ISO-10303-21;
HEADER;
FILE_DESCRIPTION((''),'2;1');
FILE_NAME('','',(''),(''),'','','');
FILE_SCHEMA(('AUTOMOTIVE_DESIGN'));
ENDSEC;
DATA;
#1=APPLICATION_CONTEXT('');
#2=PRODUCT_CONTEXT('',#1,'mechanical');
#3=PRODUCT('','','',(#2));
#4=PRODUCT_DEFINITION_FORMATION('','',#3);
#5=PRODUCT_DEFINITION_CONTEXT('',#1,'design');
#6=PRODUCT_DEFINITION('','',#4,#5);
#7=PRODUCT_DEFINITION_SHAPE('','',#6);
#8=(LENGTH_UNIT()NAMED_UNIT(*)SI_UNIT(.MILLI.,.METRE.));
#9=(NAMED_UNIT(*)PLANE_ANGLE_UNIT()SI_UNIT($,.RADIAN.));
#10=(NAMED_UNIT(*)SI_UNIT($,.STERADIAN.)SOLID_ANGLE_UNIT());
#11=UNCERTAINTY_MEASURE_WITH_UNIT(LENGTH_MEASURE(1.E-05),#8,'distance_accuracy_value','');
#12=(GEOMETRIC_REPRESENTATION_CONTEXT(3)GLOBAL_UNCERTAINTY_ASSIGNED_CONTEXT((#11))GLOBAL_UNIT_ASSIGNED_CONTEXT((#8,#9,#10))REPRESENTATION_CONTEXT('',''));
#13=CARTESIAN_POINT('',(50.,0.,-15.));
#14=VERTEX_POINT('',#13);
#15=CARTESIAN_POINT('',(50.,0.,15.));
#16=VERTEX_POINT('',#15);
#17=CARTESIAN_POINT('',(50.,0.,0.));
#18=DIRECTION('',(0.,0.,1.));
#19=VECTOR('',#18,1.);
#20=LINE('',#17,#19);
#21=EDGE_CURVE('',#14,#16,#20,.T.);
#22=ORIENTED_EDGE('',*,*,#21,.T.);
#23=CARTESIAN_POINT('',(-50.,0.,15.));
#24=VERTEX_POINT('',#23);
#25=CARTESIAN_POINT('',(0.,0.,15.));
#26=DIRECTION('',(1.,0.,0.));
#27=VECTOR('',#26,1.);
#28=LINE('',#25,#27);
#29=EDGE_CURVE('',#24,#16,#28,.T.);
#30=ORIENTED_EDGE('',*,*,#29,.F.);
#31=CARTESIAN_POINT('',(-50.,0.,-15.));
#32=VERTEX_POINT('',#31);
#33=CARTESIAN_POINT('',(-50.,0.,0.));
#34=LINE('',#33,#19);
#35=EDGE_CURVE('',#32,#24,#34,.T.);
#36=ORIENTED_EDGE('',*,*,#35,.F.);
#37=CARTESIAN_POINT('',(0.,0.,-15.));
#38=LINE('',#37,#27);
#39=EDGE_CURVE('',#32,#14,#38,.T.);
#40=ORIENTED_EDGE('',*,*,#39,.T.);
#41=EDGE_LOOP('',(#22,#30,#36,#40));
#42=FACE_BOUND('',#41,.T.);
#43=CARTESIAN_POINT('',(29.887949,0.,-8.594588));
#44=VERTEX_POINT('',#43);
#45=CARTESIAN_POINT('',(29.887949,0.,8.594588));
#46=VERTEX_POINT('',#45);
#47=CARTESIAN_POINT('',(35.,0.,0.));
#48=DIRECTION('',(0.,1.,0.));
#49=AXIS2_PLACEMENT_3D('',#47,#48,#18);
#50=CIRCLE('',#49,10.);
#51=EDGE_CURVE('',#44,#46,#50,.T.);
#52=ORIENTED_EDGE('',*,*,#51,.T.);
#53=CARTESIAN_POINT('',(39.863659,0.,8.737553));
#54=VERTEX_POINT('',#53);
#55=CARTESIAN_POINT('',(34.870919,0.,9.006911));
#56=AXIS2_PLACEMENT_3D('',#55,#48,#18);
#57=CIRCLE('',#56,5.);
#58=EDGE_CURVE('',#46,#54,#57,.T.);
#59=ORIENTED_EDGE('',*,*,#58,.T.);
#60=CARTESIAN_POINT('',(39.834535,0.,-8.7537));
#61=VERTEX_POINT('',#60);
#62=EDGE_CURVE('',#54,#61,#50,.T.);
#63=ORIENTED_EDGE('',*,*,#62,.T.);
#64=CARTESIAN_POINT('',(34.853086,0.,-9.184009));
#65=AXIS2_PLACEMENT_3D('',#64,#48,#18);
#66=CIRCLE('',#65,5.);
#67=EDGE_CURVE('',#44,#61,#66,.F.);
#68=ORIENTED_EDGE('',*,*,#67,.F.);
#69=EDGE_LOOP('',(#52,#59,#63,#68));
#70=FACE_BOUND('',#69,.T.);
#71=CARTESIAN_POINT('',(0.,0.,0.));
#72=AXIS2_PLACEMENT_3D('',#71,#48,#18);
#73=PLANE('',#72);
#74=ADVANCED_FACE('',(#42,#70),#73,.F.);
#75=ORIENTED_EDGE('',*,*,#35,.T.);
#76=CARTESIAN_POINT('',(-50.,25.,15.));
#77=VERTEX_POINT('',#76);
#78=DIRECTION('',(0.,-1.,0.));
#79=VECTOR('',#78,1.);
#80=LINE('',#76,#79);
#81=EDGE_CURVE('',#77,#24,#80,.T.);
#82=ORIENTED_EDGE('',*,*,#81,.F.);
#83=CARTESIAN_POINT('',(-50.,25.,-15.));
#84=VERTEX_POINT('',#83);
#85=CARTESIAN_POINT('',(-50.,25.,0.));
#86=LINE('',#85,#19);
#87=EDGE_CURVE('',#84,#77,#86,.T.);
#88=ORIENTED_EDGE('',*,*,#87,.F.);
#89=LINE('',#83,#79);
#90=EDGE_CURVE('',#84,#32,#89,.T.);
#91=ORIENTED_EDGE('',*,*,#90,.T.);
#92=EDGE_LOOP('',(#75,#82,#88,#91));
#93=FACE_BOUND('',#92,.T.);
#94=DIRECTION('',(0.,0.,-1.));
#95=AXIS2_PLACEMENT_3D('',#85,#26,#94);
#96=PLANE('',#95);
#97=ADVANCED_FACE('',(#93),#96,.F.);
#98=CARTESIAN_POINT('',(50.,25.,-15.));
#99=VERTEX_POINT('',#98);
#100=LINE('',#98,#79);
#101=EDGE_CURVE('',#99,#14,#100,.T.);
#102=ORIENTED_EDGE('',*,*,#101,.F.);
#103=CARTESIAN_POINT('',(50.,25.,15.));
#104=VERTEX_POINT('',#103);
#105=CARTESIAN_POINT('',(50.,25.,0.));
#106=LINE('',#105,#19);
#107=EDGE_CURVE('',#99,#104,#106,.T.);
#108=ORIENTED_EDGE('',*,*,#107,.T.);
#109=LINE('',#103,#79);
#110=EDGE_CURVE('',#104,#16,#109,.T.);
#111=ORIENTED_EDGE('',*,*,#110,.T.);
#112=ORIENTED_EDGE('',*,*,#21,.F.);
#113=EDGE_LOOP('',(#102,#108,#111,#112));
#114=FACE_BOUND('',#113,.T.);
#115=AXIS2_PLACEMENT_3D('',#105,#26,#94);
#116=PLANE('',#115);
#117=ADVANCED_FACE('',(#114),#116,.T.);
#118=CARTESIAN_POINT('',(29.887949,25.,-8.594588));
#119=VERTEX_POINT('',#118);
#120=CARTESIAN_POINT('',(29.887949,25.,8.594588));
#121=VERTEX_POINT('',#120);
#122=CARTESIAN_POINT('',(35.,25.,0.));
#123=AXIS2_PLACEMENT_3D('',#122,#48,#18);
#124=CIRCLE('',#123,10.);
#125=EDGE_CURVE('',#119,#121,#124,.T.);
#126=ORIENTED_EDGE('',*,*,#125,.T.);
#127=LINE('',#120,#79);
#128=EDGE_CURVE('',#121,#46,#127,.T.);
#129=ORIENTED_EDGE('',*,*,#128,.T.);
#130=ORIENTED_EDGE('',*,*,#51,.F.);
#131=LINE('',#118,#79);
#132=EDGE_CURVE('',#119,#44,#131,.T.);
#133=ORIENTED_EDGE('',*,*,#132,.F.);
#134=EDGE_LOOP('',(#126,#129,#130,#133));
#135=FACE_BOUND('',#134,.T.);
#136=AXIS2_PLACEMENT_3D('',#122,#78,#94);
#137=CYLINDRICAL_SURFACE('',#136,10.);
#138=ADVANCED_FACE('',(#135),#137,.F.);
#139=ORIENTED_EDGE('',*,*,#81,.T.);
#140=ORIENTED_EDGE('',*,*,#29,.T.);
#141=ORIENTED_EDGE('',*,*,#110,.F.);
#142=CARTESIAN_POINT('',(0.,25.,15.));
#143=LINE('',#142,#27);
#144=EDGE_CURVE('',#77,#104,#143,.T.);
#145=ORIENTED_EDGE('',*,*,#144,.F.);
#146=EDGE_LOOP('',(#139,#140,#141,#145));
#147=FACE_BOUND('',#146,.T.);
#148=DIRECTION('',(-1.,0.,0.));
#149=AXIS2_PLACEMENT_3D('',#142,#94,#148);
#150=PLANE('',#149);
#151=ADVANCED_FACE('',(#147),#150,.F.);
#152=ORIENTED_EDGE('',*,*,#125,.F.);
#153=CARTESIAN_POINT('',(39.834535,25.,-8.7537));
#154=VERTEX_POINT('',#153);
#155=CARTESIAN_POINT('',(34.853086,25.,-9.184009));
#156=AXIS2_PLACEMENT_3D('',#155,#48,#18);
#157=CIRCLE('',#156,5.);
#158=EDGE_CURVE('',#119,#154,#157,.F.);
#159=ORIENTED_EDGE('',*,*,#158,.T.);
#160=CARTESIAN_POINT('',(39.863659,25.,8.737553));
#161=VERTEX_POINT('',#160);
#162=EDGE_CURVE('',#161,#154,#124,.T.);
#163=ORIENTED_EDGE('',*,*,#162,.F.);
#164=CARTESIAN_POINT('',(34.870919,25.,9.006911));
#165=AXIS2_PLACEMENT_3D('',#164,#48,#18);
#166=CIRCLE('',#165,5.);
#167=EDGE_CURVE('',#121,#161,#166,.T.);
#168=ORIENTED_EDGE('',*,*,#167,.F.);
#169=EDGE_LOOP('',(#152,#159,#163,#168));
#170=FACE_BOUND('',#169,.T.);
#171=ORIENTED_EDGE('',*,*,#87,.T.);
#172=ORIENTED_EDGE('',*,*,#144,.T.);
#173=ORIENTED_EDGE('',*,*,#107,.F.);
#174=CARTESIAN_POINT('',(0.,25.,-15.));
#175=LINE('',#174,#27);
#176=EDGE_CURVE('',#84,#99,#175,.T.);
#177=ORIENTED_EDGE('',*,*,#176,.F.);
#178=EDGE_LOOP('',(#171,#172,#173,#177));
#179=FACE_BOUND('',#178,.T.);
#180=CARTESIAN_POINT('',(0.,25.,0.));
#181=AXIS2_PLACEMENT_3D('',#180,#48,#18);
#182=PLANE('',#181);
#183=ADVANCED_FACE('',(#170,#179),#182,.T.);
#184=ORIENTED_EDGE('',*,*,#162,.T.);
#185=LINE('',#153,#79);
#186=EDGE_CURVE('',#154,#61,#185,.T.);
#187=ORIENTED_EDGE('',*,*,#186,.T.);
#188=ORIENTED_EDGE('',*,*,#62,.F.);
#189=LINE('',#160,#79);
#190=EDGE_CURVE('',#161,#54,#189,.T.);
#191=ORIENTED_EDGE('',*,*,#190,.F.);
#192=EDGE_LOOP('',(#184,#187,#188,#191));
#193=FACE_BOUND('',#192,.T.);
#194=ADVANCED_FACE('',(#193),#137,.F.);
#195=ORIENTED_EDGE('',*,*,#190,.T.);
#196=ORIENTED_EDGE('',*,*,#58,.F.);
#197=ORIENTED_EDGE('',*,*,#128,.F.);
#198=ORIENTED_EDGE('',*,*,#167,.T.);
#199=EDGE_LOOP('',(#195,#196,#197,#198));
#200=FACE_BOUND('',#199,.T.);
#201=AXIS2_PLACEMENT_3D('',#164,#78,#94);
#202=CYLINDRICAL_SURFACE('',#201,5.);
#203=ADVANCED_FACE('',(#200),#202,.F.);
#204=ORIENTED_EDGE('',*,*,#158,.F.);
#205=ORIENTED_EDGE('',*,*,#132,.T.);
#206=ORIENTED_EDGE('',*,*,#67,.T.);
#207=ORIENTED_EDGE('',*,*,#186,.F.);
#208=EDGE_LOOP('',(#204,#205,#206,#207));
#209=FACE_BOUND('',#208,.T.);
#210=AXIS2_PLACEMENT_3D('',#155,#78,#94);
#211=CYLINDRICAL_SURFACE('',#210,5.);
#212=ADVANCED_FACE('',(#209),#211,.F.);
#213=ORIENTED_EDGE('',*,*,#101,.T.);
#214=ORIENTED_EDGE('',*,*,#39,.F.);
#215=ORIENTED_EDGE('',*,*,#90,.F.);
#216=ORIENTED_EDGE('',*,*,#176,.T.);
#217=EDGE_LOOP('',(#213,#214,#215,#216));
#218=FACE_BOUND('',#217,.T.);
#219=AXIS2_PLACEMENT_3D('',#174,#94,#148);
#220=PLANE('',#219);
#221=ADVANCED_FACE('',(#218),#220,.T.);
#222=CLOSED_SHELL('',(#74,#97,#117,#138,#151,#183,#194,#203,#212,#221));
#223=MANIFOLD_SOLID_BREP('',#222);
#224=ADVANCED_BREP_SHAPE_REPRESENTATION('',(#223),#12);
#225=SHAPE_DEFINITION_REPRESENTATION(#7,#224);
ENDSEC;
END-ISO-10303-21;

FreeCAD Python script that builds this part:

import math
import FreeCAD as App
import Part
import Sketcher
from FreeCAD import Vector
Q = App.Units.Quantity


def add_polygon(sketch, points):
    """Adds a closed chain of lines whose ends are joined by coincident constraints."""
    first, n = sketch.GeometryCount, len(points)
    for a, b in zip(points, points[1:] + points[:1]):
        sketch.addGeometry(Part.LineSegment(App.Vector(*a, 0), App.Vector(*b, 0)), False)
    for i in range(n):
        sketch.addConstraint(Sketcher.Constraint("Coincident", first + i, 2, first + (i + 1) % n, 1))

doc = App.newDocument("Part")
params = doc.addObject("Spreadsheet::Sheet", "Params")
for row, (alias, value) in enumerate([
    ("sketch1_radius", "5 mm"),
    ("sketch1_radius2", "10 mm"),
    ("sketch1_width", "100 mm"),
    ("sketch1_height", "30 mm"),
    ("pad1_length", "25 mm"),
], start=1):
    params.set(f"A{row}", alias)
    params.set(f"B{row}", "=" + value)
    params.setAlias(f"B{row}", alias)

body = doc.addObject("PartDesign::Body", "Body")

sketch1 = body.newObject("Sketcher::SketchObject", "Sketch")
sketch1.AttachmentSupport = (doc.getObject("XZ_Plane"), [""])
sketch1.MapMode = "FlatFace"
add_polygon(sketch1, [(-50, -15), (-50, 15), (50, 15), (50, -15)])
sketch1.addGeometry(Part.ArcOfCircle(Part.Circle(Vector(35, -9, 0), Vector(0, 0, 1), 5), math.radians(173), math.radians(365)), False)
sketch1.addGeometry(Part.ArcOfCircle(Part.Circle(Vector(35, 0, 0), Vector(0, 0, 1), 10), math.radians(-61), math.radians(0)), False)
sketch1.addGeometry(Part.ArcOfCircle(Part.Circle(Vector(35, 0, 0), Vector(0, 0, 1), 10), math.radians(0), math.radians(61)), False)
sketch1.addGeometry(Part.ArcOfCircle(Part.Circle(Vector(35, 9, 0), Vector(0, 0, 1), 5), math.radians(-3), math.radians(185)), False)
sketch1.addGeometry(Part.ArcOfCircle(Part.Circle(Vector(35, 0, 0), Vector(0, 0, 1), 10), math.radians(121), math.radians(239)), False)
sketch1.addConstraint([
    Sketcher.Constraint("Coincident", 4, 2, 5, 1),
    Sketcher.Constraint("Tangent", 5, 2, 6, 1),
    Sketcher.Constraint("Coincident", 6, 2, 7, 1),
    Sketcher.Constraint("Coincident", 7, 2, 8, 1),
    Sketcher.Constraint("Coincident", 8, 2, 4, 1),
    Sketcher.Constraint("Vertical", 0),
    Sketcher.Constraint("Horizontal", 1),
    Sketcher.Constraint("Vertical", 2),
    Sketcher.Constraint("Horizontal", 3),
    Sketcher.Constraint("Coincident", 8, 3, 5, 3),
    Sketcher.Constraint("Equal", 5, 6),
    Sketcher.Constraint("Equal", 4, 7),
    Sketcher.Constraint("Equal", 6, 8),
    Sketcher.Constraint("Symmetric", 0, 2, 2, 2, -1, 1),
    Sketcher.Constraint("Symmetric", 7, 2, 8, 2, -1),
    Sketcher.Constraint("PointOnObject", 5, 2, -1),
    Sketcher.Constraint("Radius", 4, Q("5 mm")),
    Sketcher.Constraint("Radius", 5, Q("10 mm")),
    Sketcher.Constraint("DistanceX", 1, 1, 1, 2, Q("100 mm")),
    Sketcher.Constraint("DistanceY", 0, 1, 0, 2, Q("30 mm")),
    Sketcher.Constraint("DistanceX", -1, 1, 5, 3, Q("35 mm")),
    Sketcher.Constraint("DistanceY", 4, 2, -1, 1, Q("8.7537 mm")),
    Sketcher.Constraint("DistanceY", 4, 3, -1, 1, Q("9.184009 mm")),
    Sketcher.Constraint("DistanceX", -1, 1, 7, 3, Q("34.870919 mm")),
])
sketch1.setExpression("Constraints[20]", "Params.sketch1_radius")
sketch1.setExpression("Constraints[21]", "Params.sketch1_radius2")
sketch1.setExpression("Constraints[22]", "Params.sketch1_width")
sketch1.setExpression("Constraints[23]", "Params.sketch1_height")
pad1 = body.newObject("PartDesign::Pad", "Pad")
pad1.Profile = sketch1
pad1.setExpression("Length", "Params.pad1_length")
pad1.Reversed = True

doc.recompute()
